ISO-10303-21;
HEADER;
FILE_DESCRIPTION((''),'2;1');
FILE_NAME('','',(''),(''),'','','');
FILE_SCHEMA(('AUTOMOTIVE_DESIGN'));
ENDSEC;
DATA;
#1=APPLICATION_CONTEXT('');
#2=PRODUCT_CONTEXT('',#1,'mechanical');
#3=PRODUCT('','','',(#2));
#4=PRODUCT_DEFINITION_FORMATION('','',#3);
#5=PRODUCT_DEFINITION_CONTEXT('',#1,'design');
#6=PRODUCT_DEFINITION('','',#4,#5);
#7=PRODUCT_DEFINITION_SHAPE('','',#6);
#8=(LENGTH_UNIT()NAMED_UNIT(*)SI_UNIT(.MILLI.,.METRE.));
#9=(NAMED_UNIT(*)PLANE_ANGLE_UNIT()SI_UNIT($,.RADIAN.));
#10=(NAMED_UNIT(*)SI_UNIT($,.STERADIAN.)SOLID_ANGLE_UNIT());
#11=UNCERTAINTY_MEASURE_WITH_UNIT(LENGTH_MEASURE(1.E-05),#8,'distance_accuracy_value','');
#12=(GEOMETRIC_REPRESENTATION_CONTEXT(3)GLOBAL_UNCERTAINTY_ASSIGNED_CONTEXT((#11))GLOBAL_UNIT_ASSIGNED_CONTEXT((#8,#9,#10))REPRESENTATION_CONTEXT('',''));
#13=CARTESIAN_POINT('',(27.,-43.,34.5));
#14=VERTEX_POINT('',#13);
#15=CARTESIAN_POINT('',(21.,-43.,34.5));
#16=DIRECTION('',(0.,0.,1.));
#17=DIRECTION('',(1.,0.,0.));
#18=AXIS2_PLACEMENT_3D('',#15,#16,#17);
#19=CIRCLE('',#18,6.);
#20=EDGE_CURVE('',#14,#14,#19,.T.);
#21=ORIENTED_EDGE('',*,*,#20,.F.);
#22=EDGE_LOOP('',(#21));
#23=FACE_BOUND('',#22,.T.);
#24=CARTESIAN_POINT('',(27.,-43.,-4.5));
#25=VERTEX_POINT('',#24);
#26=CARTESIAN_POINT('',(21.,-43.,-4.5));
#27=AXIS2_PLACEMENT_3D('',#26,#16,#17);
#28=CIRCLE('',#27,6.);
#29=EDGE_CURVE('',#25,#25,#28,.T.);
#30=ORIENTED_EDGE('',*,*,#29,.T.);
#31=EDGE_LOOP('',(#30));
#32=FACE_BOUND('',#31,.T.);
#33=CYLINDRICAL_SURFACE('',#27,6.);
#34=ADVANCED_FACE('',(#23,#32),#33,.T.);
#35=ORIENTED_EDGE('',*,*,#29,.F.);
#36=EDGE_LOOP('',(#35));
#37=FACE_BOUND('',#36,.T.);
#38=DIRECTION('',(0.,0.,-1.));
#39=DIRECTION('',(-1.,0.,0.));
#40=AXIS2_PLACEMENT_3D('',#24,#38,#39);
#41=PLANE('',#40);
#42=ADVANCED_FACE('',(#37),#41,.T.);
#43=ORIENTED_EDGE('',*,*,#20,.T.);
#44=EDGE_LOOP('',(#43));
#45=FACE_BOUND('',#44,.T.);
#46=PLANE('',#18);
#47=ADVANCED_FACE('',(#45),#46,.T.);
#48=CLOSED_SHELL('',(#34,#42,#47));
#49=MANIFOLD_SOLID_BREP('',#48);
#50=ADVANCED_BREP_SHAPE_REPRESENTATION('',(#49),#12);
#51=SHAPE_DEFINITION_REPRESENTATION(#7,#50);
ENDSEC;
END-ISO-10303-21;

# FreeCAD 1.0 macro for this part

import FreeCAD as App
import Part
import Sketcher

V = App.Vector
Q = App.Units.Quantity


def add_polygon(sketch, points):
    """Adds a closed chain of lines whose ends are joined by coincident constraints."""
    first, n = sketch.GeometryCount, len(points)
    for a, b in zip(points, points[1:] + points[:1]):
        sketch.addGeometry(Part.LineSegment(App.Vector(*a, 0), App.Vector(*b, 0)), False)
    for i in range(n):
        sketch.addConstraint(Sketcher.Constraint("Coincident", first + i, 2, first + (i + 1) % n, 1))

doc = App.newDocument("Part")
params = doc.addObject("Spreadsheet::Sheet", "Params")
for row, (alias, value) in enumerate([
    ("sketch1_width", "6 mm"),
    ("sketch1_height", "39 mm"),
    ("revolution_angle", "360 deg"),
], start=1):
    params.set(f"A{row}", alias)
    params.set(f"B{row}", "=" + value)
    params.setAlias(f"B{row}", alias)

body = doc.addObject("PartDesign::Body", "Body")

# Sketch on XZ plane
sketch1 = body.newObject("Sketcher::SketchObject", "Sketch")
sketch1.AttachmentSupport = (doc.getObject("XZ_Plane"), [""])
sketch1.MapMode = "FlatFace"
sketch1.AttachmentOffset = App.Placement(V(0, 0, 43), App.Rotation())
add_polygon(sketch1, [(21, -4.5), (21, 34.5), (27, 34.5), (27, -4.5)])  # lines 0-3
sketch1.addGeometry(Part.LineSegment(V(21, -4.5, 0), V(21, 34.5, 0)), True)  # axis
sketch1.addConstraint([
    Sketcher.Constraint("Vertical", 0),
    Sketcher.Constraint("Horizontal", 1),
    Sketcher.Constraint("Vertical", 2),
    Sketcher.Constraint("Horizontal", 3),
    Sketcher.Constraint("Vertical", 4),
    Sketcher.Constraint("Coincident", 4, 1, 3, 2),
    Sketcher.Constraint("Horizontal", 1, 2, 4, 2),
    Sketcher.Constraint("DistanceX", 1, 1, 1, 2, Q("6 mm")),
    Sketcher.Constraint("DistanceY", 0, 1, 0, 2, Q("39 mm")),
    Sketcher.Constraint("DistanceX", -1, 1, 0, 2, Q("21 mm")),
    Sketcher.Constraint("DistanceY", -1, 1, 0, 2, Q("34.5 mm")),
])
sketch1.setExpression("Constraints[11]", "Params.sketch1_width")
sketch1.setExpression("Constraints[12]", "Params.sketch1_height")
revolution = body.newObject("PartDesign::Revolution", "Revolution")
revolution.Profile = sketch1
revolution.ReferenceAxis = (sketch1, ["Axis0"])
revolution.setExpression("Angle", "Params.revolution_angle")

doc.recompute()
